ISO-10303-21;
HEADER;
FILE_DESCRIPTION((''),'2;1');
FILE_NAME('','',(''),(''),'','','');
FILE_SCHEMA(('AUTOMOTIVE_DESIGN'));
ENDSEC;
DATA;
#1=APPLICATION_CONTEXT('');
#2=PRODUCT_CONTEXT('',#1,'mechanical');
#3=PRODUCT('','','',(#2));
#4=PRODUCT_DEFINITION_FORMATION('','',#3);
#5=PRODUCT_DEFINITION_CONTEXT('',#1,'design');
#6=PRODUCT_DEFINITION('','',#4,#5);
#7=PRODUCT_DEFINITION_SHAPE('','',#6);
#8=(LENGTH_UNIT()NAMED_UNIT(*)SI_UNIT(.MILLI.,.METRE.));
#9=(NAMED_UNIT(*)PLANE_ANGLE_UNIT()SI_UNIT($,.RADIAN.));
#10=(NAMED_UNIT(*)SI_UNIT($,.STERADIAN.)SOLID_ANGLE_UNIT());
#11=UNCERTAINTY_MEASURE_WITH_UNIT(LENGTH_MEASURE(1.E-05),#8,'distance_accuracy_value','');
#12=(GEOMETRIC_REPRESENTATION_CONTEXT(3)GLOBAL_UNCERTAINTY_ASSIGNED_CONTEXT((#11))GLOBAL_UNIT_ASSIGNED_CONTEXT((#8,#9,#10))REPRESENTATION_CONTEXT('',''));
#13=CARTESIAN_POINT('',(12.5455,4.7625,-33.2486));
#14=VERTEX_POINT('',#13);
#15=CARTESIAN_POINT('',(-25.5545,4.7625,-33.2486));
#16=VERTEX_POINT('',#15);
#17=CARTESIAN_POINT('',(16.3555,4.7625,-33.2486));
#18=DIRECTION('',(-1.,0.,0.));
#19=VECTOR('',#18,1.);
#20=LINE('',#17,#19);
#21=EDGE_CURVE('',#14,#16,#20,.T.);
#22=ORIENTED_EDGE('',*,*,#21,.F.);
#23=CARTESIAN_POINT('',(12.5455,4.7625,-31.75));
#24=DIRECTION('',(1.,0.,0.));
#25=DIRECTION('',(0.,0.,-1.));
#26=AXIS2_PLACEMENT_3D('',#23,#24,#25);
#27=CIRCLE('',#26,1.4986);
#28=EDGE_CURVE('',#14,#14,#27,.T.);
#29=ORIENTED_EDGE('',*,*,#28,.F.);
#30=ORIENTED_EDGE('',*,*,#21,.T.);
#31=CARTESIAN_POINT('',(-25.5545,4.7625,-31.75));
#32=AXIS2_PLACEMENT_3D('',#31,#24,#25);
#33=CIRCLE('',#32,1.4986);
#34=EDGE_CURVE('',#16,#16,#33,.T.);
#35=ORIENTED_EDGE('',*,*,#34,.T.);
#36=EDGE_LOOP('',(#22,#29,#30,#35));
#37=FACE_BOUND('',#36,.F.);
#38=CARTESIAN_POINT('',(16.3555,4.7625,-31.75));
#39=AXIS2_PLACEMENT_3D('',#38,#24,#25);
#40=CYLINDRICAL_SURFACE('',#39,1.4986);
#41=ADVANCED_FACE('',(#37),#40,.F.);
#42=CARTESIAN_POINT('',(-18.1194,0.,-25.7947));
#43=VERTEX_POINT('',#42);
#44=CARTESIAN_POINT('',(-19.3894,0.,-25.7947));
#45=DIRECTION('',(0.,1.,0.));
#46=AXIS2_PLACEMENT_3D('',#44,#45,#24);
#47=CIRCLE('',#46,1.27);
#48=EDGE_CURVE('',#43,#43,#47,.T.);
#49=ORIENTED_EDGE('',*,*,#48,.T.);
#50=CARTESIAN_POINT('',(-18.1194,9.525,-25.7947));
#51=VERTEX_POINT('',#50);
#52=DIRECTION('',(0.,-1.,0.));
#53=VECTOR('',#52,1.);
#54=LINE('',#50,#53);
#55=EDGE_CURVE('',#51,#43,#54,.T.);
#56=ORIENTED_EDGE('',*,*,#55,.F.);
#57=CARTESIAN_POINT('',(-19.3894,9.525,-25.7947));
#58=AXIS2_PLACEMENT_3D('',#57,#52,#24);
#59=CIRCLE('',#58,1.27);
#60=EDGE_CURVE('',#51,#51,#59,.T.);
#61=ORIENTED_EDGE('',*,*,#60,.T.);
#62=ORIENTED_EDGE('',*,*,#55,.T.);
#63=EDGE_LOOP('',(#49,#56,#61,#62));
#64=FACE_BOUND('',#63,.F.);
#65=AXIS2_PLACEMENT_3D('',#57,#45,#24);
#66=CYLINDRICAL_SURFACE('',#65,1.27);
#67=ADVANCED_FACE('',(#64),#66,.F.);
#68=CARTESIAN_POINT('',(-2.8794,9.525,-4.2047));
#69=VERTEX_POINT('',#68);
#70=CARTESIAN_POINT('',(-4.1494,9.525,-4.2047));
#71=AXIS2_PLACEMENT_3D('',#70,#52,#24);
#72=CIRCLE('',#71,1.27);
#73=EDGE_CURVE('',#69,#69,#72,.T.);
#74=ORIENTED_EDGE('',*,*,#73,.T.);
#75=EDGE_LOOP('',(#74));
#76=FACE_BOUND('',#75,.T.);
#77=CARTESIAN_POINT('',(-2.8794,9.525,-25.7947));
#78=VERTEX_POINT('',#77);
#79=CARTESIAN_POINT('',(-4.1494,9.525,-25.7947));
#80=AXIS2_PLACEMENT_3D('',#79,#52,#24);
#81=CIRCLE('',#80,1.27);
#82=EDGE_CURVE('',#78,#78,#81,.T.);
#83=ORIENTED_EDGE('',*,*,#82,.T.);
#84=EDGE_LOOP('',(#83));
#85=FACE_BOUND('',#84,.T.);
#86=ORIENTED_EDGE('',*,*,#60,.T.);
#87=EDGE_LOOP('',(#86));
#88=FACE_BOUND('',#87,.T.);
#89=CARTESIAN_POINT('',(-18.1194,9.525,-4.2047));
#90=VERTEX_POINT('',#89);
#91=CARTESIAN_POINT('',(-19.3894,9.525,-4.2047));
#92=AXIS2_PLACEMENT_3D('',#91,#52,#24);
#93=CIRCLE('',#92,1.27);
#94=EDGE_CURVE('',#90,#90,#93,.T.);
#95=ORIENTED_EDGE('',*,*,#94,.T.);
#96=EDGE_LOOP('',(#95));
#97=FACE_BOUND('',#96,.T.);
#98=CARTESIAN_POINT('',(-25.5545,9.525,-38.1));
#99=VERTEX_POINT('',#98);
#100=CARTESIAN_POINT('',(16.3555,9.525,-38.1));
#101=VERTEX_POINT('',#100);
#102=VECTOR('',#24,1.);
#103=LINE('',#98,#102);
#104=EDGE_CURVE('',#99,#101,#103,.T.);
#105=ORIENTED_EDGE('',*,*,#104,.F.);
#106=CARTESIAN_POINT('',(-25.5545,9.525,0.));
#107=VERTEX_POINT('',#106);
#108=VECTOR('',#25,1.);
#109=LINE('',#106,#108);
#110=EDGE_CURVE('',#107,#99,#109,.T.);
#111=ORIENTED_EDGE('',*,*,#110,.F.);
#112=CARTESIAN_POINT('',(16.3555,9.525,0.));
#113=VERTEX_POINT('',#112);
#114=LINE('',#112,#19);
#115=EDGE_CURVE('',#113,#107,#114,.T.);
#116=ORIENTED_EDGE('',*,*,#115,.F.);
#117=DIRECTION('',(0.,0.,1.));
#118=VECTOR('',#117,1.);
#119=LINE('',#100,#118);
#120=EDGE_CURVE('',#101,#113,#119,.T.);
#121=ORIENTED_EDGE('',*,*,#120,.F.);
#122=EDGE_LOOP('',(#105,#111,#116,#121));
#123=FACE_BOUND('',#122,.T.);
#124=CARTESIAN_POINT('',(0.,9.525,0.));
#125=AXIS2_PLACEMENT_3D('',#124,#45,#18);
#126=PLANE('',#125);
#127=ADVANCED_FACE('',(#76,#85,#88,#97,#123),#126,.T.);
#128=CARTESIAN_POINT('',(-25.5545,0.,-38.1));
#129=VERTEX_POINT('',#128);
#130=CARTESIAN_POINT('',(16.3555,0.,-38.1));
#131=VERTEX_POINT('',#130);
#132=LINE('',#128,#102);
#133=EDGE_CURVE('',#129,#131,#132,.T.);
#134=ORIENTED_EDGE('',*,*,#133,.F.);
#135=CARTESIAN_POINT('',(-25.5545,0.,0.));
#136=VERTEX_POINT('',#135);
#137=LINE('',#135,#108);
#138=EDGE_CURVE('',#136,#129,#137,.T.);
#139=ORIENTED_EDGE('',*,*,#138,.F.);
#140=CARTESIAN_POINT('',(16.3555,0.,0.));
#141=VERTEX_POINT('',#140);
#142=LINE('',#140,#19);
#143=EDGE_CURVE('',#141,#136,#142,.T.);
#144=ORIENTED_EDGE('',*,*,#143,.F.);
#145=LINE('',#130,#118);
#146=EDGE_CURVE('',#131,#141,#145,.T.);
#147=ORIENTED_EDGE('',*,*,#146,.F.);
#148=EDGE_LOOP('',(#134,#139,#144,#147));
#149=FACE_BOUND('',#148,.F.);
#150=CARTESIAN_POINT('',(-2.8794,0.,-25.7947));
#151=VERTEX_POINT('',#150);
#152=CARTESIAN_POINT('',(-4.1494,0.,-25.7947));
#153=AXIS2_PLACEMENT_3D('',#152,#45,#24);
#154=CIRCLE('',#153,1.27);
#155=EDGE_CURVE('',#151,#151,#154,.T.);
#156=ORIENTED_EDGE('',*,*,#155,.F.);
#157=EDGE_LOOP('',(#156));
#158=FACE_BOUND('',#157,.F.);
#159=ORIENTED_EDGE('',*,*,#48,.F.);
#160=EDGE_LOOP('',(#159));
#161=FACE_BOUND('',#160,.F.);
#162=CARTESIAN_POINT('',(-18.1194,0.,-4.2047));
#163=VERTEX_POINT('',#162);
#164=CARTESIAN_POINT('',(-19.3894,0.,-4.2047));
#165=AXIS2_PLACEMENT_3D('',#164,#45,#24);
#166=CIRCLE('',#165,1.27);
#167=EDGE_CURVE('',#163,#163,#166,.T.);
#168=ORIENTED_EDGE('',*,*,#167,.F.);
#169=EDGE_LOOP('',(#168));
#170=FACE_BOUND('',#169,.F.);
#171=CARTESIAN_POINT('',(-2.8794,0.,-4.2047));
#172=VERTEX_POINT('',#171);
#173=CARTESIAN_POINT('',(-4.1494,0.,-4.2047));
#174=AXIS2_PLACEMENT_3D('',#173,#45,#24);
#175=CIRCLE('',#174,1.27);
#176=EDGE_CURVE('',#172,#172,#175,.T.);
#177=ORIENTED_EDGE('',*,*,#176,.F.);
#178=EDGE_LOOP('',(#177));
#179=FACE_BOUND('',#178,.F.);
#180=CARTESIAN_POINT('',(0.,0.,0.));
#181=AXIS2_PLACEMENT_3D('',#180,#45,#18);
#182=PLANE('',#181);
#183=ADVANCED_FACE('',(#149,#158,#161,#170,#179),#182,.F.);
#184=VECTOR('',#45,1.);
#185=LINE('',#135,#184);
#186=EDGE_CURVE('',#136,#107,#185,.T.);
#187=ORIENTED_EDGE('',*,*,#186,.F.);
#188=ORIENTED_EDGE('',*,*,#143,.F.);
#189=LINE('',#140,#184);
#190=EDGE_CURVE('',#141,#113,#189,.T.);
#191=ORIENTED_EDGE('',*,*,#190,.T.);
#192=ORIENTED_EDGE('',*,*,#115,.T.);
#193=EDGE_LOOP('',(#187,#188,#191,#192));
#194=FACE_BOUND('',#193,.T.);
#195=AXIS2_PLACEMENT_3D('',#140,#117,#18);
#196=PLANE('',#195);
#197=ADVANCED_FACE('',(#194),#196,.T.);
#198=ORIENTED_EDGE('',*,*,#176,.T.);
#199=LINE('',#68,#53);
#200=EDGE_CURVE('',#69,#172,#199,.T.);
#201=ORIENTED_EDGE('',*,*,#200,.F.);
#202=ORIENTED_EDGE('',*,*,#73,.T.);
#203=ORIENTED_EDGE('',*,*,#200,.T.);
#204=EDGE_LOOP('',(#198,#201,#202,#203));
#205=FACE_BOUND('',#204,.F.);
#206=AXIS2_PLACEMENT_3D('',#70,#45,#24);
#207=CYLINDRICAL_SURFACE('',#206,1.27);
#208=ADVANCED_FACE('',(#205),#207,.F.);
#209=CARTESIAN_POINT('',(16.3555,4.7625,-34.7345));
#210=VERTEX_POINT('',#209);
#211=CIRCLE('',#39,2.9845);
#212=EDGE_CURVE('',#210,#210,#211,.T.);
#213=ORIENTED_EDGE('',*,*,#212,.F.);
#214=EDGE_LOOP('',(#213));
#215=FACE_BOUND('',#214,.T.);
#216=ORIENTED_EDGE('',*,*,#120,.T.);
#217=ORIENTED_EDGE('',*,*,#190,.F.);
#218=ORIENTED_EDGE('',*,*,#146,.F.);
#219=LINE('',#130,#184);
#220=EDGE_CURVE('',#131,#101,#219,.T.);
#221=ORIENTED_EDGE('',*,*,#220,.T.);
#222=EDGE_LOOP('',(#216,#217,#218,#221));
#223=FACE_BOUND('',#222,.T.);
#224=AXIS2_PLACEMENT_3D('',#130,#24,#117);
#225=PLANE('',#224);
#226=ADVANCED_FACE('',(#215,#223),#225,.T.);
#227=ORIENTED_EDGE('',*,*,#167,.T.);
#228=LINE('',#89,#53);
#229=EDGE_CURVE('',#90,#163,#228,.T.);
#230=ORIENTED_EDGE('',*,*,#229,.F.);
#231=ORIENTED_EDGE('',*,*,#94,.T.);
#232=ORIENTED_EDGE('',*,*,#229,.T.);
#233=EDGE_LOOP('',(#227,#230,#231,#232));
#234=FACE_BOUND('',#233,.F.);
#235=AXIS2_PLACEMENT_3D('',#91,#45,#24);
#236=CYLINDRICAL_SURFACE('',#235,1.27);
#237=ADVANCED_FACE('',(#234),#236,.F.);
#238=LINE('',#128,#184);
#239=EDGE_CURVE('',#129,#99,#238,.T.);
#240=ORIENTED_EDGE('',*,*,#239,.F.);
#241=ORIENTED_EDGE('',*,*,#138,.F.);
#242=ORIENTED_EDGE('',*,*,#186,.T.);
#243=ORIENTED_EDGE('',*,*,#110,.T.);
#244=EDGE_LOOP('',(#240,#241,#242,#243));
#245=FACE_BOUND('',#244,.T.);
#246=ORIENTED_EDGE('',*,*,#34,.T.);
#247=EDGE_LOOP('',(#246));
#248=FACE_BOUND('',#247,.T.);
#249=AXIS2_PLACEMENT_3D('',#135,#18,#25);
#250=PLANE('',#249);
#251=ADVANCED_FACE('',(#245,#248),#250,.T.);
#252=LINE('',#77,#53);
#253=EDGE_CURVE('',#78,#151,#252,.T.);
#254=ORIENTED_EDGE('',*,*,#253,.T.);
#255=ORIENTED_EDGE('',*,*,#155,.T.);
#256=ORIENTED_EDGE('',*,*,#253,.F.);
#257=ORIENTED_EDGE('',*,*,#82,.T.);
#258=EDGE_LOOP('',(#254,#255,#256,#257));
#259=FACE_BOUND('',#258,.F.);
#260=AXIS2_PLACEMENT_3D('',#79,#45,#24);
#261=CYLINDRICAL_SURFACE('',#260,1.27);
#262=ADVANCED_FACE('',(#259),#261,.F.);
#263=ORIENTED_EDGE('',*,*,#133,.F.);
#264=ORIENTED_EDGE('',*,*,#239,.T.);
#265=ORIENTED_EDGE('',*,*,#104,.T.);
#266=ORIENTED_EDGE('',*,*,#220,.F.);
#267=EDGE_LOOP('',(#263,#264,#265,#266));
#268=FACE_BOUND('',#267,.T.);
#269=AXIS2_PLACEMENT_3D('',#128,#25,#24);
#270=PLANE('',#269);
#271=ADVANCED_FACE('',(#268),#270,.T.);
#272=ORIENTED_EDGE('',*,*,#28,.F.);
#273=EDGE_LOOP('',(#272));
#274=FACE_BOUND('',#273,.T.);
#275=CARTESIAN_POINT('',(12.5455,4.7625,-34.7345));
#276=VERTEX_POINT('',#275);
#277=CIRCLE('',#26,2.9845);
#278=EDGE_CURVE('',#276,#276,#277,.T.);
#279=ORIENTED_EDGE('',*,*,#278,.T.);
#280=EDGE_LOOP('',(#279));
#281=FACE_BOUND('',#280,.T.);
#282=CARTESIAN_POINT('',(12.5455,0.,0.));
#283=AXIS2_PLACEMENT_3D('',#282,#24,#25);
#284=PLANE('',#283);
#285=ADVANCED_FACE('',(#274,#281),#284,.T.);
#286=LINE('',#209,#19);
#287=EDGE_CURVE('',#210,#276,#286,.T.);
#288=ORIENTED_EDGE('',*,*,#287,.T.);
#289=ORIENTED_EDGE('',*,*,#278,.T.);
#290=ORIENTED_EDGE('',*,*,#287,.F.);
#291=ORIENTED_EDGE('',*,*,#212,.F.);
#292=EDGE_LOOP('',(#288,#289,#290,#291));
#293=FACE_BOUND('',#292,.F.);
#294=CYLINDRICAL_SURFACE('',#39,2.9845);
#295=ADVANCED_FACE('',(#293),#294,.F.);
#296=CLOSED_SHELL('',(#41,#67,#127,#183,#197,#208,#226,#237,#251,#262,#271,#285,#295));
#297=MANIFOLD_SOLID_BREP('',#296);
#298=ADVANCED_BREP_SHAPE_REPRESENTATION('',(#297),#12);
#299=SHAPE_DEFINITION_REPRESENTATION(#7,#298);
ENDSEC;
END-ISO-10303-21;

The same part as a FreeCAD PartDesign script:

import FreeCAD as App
import Part
import Sketcher

V = App.Vector
Q = App.Units.Quantity


def add_polygon(sketch, points):
    """Adds a closed chain of lines whose ends are joined by coincident constraints."""
    first, n = sketch.GeometryCount, len(points)
    for a, b in zip(points, points[1:] + points[:1]):
        sketch.addGeometry(Part.LineSegment(App.Vector(*a, 0), App.Vector(*b, 0)), False)
    for i in range(n):
        sketch.addConstraint(Sketcher.Constraint("Coincident", first + i, 2, first + (i + 1) % n, 1))

doc = App.newDocument("Part")
body = doc.addObject("PartDesign::Body", "Body")

sketch1 = body.newObject("Sketcher::SketchObject", "Sketch")
sketch1.AttachmentSupport = (doc.getObject("XZ_Plane"), [""])
sketch1.MapMode = "FlatFace"
add_polygon(sketch1, [(-25.5545, 0), (16.3555, 0), (16.3555, -38.1), (-25.5545, -38.1)])
sketch1.addConstraint([
    Sketcher.Constraint("Horizontal", 0),
    Sketcher.Constraint("Vertical", 1),
    Sketcher.Constraint("Horizontal", 2),
    Sketcher.Constraint("Vertical", 3),
    Sketcher.Constraint("PointOnObject", 0, 2, -1),
    Sketcher.Constraint("DistanceY", 1, 2, 1, 1, Q("1.5 in")),
    Sketcher.Constraint("DistanceX", 0, 1, 0, 2, Q("1.65 in")),
    Sketcher.Constraint("DistanceX", -1, 1, 0, 2, 16.3555),
])
pad1 = body.newObject("PartDesign::Pad", "Pad")
pad1.Profile = sketch1
pad1.Length = Q("0.375 in")
pad1.Reversed = True

sketch2 = body.newObject("Sketcher::SketchObject", "Sketch001")
sketch2.AttachmentSupport = (doc.getObject("YZ_Plane"), [""])
sketch2.MapMode = "FlatFace"
sketch2.AttachmentOffset = App.Placement(V(0, 0, 16.3555), App.Rotation())
sketch2.addGeometry(Part.Circle(V(4.7625, -31.75, 0), V(0, 0, 1), 1.4986), False)
sketch2.addConstraint([
    Sketcher.Constraint("Diameter", 0, Q("0.118 in")),
    Sketcher.Constraint("DistanceX", -1, 1, 0, 3, Q("0.1875 in")),
    Sketcher.Constraint("DistanceY", 0, 3, -1, 1, Q("1.25 in")),
])
pocket1 = body.newObject("PartDesign::Pocket", "Pocket")
pocket1.Profile = sketch2
pocket1.Type = "ThroughAll"

sketch3 = body.newObject("Sketcher::SketchObject", "Sketch002")
sketch3.AttachmentSupport = (doc.getObject("YZ_Plane"), [""])
sketch3.MapMode = "FlatFace"
sketch3.AttachmentOffset = App.Placement(V(0, 0, 16.3555), App.Rotation())
sketch3.addGeometry([
    Part.Circle(V(4.7625, -31.75, 0), V(0, 0, 1), 2.9845),
    Part.Circle(V(4.7625, -31.75, 0), V(0, 0, 1), 1.4986),
], False)
sketch3.addConstraint([
    Sketcher.Constraint("Coincident", 1, 3, 0, 3),
    Sketcher.Constraint("Diameter", 0, Q("0.235 in")),
    Sketcher.Constraint("Diameter", 1, Q("0.118 in")),
    Sketcher.Constraint("DistanceY", 0, 3, -1, 1, Q("1.25 in")),
    Sketcher.Constraint("DistanceX", -1, 1, 0, 3, Q("0.1875 in")),
])
pocket2 = body.newObject("PartDesign::Pocket", "Pocket001")
pocket2.Profile = sketch3
pocket2.Length = Q("0.15 in")

sketch4 = body.newObject("Sketcher::SketchObject", "Sketch003")
sketch4.AttachmentSupport = (doc.getObject("XZ_Plane"), [""])
sketch4.MapMode = "FlatFace"
sketch4.AttachmentOffset = App.Placement(V(0, 0, -0.375 * 25.4), App.Rotation())
sketch4.addGeometry([
    Part.Circle(V(-19.3894, -4.2047, 0), V(0, 0, 1), 1.27),
    Part.Circle(V(-4.1494, -4.2047, 0), V(0, 0, 1), 1.27),
    Part.Circle(V(-19.3894, -25.7947, 0), V(0, 0, 1), 1.27),
    Part.Circle(V(-4.1494, -25.7947, 0), V(0, 0, 1), 1.27),
], False)
sketch4.addConstraint([
    Sketcher.Constraint("Equal", 0, 1),
    Sketcher.Constraint("Equal", 1, 2),
    Sketcher.Constraint("Equal", 2, 3),
    Sketcher.Constraint("Horizontal", 0, 3, 1, 3),
    Sketcher.Constraint("Horizontal", 2, 3, 3, 3),
    Sketcher.Constraint("Vertical", 0, 3, 2, 3),
    Sketcher.Constraint("Vertical", 1, 3, 3, 3),
    Sketcher.Constraint("Diameter", 0, Q("0.1 in")),
    Sketcher.Constraint("DistanceX", 0, 3, 1, 3, Q("0.6 in")),
    Sketcher.Constraint("DistanceY", 2, 3, 0, 3, Q("0.85 in")),
    Sketcher.Constraint("DistanceX", 0, 3, -1, 1, 19.3894),
    Sketcher.Constraint("DistanceY", 0, 3, -1, 1, 4.2047),
])
pocket3 = body.newObject("PartDesign::Pocket", "Pocket002")
pocket3.Profile = sketch4
pocket3.Type = "ThroughAll"
pocket3.Reversed = True

doc.recompute()
